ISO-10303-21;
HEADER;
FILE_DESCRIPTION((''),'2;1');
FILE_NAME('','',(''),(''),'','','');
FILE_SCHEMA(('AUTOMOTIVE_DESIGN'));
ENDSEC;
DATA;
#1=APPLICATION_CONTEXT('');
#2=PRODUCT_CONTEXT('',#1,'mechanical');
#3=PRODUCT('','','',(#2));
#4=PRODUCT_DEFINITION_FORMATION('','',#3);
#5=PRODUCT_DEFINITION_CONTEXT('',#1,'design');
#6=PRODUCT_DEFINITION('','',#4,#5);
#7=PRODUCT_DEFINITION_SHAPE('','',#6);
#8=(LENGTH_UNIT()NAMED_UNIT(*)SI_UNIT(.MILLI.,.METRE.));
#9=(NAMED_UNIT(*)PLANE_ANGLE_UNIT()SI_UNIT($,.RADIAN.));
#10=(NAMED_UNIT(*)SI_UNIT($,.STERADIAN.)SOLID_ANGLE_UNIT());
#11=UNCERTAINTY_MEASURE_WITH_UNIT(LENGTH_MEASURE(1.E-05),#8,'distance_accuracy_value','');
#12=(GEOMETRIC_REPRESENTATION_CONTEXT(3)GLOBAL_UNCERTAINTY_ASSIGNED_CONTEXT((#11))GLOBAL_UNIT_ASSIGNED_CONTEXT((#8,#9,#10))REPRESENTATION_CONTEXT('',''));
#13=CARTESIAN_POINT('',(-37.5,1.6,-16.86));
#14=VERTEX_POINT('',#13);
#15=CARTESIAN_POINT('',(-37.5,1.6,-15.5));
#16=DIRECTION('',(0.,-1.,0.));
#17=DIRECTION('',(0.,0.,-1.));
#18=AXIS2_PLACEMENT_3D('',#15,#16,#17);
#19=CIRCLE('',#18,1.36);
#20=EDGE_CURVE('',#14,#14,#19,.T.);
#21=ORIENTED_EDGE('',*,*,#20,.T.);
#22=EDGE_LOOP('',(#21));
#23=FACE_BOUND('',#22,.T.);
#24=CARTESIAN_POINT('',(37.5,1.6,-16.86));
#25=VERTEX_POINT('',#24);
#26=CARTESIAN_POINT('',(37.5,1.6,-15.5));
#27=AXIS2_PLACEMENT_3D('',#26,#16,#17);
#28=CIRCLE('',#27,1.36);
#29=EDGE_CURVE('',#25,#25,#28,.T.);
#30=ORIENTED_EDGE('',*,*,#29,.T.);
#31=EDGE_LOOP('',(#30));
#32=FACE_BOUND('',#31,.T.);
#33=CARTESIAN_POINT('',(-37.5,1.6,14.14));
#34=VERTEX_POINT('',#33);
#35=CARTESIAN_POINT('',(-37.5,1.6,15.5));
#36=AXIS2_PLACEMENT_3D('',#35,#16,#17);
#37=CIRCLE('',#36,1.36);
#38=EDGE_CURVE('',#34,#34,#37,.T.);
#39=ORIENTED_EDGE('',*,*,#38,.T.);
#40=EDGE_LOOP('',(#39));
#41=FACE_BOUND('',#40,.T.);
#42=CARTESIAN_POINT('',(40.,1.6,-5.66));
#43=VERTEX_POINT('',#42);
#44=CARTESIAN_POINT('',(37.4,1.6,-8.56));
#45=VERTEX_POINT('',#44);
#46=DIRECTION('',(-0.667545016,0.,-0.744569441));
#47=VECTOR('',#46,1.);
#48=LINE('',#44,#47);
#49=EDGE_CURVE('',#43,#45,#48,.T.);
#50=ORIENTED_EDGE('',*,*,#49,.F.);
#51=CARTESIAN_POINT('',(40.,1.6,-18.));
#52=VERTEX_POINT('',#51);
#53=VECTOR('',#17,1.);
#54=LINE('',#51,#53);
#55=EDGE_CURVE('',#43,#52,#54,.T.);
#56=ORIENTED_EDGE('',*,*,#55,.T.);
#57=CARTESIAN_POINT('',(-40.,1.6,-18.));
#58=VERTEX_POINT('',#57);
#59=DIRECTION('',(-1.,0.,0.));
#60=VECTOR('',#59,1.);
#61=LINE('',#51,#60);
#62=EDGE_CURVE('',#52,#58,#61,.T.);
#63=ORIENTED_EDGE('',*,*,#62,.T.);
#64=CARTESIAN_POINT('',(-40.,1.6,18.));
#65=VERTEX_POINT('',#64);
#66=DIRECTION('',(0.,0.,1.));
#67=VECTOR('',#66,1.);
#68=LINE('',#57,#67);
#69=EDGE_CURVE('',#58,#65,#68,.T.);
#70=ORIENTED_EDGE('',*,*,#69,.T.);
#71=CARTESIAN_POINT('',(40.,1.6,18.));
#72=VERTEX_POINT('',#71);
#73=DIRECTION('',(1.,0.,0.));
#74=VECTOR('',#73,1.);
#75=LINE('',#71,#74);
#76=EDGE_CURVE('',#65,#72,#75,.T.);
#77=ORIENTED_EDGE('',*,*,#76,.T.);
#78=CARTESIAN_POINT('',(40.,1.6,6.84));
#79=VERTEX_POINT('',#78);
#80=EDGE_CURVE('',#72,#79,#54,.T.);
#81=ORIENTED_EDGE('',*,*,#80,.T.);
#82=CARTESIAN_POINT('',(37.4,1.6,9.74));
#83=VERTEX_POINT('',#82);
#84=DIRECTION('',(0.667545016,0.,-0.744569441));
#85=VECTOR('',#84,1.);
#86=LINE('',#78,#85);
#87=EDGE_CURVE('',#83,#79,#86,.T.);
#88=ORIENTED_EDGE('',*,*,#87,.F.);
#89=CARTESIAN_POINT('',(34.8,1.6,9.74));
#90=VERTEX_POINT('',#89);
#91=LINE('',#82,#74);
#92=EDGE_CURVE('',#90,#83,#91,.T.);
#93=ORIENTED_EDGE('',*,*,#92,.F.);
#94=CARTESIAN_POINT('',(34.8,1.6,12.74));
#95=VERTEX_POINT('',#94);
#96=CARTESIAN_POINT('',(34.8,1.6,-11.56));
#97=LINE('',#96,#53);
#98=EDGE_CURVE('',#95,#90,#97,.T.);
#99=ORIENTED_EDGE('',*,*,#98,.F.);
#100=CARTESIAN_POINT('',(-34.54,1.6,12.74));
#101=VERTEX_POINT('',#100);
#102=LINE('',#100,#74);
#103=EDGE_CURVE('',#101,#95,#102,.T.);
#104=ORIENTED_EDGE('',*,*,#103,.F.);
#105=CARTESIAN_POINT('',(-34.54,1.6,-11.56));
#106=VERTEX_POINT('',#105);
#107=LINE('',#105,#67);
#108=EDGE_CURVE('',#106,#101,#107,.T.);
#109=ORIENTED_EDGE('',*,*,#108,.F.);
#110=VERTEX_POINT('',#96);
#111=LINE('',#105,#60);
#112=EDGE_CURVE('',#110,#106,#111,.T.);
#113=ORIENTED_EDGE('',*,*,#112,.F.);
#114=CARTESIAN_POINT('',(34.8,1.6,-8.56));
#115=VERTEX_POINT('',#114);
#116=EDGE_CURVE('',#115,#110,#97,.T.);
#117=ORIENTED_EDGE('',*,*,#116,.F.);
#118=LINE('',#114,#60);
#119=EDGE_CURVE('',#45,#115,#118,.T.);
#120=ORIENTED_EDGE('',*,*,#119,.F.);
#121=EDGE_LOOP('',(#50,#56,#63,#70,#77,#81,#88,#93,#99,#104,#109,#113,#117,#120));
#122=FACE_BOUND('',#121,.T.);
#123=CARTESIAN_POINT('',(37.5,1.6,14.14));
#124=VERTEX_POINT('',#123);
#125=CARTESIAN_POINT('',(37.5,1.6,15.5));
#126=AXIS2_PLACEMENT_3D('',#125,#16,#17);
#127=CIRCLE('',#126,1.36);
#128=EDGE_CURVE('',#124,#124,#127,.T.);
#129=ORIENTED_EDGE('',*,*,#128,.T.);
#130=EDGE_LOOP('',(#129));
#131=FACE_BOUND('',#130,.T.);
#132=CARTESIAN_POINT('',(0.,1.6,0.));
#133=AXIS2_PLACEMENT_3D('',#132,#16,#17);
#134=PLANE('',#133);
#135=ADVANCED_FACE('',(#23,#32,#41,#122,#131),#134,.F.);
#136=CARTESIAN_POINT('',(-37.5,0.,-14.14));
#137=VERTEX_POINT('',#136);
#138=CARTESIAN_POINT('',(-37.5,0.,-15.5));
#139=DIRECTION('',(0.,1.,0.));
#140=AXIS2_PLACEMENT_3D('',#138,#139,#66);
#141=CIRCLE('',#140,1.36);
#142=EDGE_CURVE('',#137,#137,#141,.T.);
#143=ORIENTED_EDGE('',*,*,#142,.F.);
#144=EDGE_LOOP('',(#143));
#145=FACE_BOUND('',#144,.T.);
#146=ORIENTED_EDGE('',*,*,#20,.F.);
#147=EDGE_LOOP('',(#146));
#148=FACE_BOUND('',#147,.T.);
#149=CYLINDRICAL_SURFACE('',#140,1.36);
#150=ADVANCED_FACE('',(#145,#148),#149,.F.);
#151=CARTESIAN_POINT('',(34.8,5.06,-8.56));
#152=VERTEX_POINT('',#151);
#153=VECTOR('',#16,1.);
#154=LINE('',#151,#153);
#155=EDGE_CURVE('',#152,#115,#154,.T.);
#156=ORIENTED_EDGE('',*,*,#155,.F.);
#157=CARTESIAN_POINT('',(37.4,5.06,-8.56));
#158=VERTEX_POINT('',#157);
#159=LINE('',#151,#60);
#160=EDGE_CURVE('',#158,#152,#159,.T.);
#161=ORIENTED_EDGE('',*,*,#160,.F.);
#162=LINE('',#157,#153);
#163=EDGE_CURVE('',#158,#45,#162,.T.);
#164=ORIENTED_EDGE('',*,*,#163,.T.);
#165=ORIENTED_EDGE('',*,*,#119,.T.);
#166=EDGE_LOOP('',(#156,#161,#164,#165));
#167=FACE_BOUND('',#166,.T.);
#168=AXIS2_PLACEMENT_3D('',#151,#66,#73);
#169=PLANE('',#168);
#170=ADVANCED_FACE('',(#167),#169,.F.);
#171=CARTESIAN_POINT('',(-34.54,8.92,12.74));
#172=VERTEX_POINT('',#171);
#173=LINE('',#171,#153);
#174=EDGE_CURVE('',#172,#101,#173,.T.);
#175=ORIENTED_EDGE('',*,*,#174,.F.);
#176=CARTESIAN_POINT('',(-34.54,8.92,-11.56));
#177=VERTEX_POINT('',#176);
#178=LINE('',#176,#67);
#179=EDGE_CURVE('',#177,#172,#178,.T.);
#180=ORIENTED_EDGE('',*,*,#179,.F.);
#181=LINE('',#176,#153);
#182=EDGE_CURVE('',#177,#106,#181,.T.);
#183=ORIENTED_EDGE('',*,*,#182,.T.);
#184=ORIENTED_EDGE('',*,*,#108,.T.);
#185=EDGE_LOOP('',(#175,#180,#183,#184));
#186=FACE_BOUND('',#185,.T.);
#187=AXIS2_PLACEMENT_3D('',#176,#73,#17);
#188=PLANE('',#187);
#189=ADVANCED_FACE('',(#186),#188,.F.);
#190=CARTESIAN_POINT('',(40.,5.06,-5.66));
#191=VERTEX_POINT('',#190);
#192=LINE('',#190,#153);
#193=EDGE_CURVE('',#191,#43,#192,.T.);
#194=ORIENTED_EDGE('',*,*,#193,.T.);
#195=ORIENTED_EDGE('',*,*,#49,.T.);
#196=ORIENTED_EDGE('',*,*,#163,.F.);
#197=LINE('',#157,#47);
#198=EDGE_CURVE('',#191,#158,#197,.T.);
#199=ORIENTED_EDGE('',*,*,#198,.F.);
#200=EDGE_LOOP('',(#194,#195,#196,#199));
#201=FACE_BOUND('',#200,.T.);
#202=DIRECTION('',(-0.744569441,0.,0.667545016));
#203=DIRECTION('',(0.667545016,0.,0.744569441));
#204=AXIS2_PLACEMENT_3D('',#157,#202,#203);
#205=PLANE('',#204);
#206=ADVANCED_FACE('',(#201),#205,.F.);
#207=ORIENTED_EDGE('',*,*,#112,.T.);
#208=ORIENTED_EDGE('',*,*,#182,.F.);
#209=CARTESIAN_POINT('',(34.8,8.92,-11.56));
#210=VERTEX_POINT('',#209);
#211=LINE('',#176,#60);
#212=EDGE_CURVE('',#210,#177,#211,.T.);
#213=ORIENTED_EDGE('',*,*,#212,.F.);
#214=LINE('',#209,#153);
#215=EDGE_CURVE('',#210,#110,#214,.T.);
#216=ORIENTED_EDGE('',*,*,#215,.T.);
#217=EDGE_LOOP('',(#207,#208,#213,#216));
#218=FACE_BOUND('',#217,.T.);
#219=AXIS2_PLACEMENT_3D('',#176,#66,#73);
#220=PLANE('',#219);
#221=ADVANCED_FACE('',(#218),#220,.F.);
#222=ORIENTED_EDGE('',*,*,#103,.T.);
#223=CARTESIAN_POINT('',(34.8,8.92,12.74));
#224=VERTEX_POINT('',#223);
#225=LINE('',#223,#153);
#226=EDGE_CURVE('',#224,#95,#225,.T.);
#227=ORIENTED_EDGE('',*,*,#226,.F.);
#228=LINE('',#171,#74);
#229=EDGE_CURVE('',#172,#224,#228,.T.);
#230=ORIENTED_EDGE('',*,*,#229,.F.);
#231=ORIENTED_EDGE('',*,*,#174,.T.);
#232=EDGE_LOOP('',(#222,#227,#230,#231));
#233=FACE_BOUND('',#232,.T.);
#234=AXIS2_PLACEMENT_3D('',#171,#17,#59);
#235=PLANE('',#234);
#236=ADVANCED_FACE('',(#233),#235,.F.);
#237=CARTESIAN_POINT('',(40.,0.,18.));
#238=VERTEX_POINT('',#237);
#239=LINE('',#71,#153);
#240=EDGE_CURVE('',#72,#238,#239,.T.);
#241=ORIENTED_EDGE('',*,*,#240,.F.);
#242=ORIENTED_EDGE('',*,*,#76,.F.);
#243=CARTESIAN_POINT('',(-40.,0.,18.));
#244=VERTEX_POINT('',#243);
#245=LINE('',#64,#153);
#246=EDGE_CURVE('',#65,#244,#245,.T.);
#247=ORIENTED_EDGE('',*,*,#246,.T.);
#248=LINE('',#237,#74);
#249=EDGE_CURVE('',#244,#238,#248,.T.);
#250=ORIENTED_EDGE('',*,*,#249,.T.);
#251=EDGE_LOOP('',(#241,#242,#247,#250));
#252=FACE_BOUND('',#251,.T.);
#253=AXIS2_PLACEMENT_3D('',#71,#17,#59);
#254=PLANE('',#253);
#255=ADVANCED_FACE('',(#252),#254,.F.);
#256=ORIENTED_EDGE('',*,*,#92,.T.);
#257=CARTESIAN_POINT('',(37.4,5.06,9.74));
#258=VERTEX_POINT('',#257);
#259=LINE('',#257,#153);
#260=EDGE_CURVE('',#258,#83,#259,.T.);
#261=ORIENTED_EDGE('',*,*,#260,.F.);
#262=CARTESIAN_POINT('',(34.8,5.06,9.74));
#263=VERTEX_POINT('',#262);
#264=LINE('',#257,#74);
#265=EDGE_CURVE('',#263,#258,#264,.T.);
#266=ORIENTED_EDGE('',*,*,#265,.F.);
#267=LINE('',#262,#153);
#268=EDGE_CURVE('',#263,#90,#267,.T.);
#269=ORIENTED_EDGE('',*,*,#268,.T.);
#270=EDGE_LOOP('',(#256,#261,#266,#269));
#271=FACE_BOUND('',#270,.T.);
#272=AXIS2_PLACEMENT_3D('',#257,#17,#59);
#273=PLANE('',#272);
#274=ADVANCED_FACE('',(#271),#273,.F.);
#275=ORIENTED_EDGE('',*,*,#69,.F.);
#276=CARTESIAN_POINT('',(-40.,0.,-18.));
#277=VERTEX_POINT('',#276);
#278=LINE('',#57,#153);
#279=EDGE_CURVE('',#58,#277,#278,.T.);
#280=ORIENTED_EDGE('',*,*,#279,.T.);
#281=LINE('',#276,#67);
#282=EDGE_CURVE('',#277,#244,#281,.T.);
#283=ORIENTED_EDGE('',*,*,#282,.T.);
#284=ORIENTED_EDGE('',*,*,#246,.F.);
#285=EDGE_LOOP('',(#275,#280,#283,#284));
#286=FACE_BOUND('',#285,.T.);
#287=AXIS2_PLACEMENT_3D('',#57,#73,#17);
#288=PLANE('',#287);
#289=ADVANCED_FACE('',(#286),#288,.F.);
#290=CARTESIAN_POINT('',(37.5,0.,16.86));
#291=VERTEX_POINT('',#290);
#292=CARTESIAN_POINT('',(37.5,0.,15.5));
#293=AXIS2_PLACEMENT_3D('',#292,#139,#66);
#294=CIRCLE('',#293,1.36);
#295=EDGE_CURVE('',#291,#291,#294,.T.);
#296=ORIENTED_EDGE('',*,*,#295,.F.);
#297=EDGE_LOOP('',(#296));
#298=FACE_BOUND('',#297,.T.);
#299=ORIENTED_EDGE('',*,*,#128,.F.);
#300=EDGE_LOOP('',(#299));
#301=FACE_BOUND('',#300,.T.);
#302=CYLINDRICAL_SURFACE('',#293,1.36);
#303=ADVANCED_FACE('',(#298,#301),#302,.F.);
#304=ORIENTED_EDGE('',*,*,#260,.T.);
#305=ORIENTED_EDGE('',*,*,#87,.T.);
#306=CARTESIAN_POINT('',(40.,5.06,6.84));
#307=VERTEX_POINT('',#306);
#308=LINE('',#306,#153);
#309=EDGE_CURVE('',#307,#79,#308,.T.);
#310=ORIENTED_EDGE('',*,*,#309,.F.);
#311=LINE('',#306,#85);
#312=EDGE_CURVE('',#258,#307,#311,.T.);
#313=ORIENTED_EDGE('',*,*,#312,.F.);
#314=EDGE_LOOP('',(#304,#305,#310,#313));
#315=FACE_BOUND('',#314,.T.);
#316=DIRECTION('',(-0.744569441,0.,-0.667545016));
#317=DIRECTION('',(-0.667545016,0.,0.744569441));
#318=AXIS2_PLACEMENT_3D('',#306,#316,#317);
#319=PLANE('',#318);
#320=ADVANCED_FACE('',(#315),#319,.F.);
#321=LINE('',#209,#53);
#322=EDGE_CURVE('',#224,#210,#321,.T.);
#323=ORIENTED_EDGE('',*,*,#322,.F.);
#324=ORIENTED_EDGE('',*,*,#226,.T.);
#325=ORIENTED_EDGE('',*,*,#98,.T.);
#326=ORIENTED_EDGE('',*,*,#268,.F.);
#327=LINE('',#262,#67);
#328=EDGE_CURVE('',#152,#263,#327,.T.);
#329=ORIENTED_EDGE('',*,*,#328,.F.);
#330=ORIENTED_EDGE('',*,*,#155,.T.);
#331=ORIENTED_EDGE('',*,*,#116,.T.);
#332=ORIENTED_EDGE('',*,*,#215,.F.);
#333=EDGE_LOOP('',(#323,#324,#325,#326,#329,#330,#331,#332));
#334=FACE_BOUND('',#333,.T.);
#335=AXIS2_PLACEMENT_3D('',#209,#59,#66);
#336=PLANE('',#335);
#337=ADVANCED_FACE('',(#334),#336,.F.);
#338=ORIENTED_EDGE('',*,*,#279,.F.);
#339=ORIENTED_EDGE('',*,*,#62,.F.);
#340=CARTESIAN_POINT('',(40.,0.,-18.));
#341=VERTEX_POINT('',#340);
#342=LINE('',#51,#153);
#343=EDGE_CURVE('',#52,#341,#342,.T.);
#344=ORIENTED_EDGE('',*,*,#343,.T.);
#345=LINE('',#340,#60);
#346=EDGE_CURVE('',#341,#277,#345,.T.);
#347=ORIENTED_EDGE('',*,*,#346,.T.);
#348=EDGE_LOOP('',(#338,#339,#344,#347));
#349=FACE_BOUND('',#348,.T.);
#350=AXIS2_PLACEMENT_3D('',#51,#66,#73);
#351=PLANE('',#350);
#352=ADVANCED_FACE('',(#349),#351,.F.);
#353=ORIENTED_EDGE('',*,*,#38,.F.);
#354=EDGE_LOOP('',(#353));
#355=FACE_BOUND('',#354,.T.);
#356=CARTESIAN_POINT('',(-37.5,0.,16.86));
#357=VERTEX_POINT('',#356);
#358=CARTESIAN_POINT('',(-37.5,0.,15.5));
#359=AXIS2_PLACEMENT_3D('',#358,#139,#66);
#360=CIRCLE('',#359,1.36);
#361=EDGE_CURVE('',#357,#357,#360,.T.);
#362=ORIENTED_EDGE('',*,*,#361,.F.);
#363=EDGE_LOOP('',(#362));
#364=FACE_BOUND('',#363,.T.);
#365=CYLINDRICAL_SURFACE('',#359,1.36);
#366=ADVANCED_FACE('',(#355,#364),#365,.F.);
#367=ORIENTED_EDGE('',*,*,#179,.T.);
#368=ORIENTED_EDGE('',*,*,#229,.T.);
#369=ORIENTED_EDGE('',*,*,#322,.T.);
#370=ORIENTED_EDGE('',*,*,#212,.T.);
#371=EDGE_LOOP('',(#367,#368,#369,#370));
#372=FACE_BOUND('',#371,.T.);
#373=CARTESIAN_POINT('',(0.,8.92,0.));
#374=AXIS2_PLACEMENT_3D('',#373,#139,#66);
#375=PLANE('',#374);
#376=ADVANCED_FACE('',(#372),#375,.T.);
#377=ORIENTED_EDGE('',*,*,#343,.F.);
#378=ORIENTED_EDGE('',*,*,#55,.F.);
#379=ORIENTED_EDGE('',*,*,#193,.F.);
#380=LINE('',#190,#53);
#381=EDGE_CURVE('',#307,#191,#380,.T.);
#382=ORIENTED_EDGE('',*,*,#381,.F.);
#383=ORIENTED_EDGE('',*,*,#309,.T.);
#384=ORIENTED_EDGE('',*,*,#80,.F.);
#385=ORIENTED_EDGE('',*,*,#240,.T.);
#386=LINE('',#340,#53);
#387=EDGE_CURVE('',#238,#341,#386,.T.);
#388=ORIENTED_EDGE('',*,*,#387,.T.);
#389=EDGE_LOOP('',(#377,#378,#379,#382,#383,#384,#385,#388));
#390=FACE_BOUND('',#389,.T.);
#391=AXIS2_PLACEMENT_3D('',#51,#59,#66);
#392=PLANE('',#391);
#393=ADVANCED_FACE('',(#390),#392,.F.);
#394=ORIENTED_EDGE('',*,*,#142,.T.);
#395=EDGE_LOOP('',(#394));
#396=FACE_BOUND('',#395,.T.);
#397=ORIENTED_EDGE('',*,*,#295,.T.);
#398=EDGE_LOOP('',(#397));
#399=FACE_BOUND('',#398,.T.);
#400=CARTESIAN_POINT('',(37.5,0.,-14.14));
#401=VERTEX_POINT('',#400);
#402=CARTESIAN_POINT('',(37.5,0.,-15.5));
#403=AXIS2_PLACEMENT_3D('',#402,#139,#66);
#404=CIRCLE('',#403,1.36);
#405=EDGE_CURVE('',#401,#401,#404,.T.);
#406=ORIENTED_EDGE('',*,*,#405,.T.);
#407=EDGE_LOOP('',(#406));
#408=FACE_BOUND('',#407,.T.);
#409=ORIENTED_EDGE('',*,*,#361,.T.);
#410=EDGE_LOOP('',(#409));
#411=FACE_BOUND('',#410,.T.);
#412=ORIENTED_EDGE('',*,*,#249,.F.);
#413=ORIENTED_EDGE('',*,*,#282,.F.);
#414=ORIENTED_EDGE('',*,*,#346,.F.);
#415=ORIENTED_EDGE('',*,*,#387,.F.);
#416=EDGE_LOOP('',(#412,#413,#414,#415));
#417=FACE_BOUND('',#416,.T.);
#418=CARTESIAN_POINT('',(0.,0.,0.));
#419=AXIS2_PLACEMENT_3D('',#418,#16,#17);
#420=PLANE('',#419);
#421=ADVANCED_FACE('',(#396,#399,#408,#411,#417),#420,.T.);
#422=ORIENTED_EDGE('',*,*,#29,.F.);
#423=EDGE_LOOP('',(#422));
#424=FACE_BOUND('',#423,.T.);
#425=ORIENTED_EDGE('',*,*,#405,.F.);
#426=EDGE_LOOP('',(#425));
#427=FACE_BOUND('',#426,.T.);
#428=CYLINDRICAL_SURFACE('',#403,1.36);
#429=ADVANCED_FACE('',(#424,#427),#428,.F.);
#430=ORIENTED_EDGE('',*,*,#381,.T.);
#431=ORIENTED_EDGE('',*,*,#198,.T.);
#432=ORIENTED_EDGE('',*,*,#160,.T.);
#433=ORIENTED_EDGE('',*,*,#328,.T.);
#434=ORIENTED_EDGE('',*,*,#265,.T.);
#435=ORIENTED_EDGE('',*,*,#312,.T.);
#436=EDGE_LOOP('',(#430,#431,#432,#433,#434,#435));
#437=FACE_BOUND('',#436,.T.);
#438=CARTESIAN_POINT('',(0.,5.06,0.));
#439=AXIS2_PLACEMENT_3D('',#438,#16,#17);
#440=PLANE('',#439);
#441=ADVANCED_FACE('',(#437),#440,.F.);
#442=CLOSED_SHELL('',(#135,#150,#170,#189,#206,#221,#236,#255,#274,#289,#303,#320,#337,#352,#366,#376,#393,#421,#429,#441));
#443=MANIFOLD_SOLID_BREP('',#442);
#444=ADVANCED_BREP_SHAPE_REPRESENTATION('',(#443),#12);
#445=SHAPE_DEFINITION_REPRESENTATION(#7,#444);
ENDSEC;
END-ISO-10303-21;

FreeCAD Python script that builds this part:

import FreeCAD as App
import Part
import Sketcher
Q = App.Units.Quantity


def add_polygon(sketch, points):
    """Adds a closed chain of lines whose ends are joined by coincident constraints."""
    first, n = sketch.GeometryCount, len(points)
    for a, b in zip(points, points[1:] + points[:1]):
        sketch.addGeometry(Part.LineSegment(App.Vector(*a, 0), App.Vector(*b, 0)), False)
    for i in range(n):
        sketch.addConstraint(Sketcher.Constraint("Coincident", first + i, 2, first + (i + 1) % n, 1))

doc = App.newDocument("Part")
body = doc.addObject("PartDesign::Body", "Body")

# Sketch on XZ plane
sketch1 = body.newObject("Sketcher::SketchObject", "Sketch")
sketch1.AttachmentSupport = (doc.getObject("XZ_Plane"), [""])
sketch1.MapMode = "FlatFace"
add_polygon(sketch1, [(-40, -18), (-40, 18), (40, 18), (40, -18)])  # lines 0-3
sketch1.addConstraint([
    Sketcher.Constraint("Vertical", 0),
    Sketcher.Constraint("Horizontal", 1),
    Sketcher.Constraint("Vertical", 2),
    Sketcher.Constraint("Horizontal", 3),
    Sketcher.Constraint("Symmetric", 0, 2, 2, 2, -1, 1),
    Sketcher.Constraint("DistanceX", 1, 1, 1, 2, Q("80 mm")),
    Sketcher.Constraint("DistanceY", 0, 1, 0, 2, Q("36 mm")),
])
pad1 = body.newObject("PartDesign::Pad", "Pad")
pad1.Profile = sketch1
pad1.Length = 1.6
pad1.Reversed = True

# Sketch on XZ plane
sketch2 = body.newObject("Sketcher::SketchObject", "Sketch001")
sketch2.AttachmentSupport = (doc.getObject("XZ_Plane"), [""])
sketch2.MapMode = "FlatFace"
sketch2.AttachmentOffset = App.Placement(App.Vector(0, 0, -1.6), App.Rotation())
add_polygon(sketch2, [(-35, -12), (-35, 13), (35, 13), (35, -12)])  # lines 0-3
sketch2.addConstraint([
    Sketcher.Constraint("Vertical", 0),
    Sketcher.Constraint("Horizontal", 1),
    Sketcher.Constraint("Vertical", 2),
    Sketcher.Constraint("Horizontal", 3),
    Sketcher.Constraint("DistanceY", 0, 1, 0, 2, Q("24.3 mm")),
    Sketcher.Constraint("DistanceX", 1, 1, 1, 2, Q("69.34 mm")),
    Sketcher.Constraint("DistanceX", -1, 1, 1, 2, Q("34.8 mm")),
    Sketcher.Constraint("DistanceY", -1, 1, 0, 2, Q("12.74 mm")),
])
pad2 = body.newObject("PartDesign::Pad", "Pad001")
pad2.Profile = sketch2
pad2.Length = 7.32
pad2.Reversed = True

# Sketch on XZ plane
sketch3 = body.newObject("Sketcher::SketchObject", "Sketch002")
sketch3.AttachmentSupport = (doc.getObject("XZ_Plane"), [""])
sketch3.MapMode = "FlatFace"
sketch3.AttachmentOffset = App.Placement(App.Vector(0, 0, -1.6), App.Rotation())
add_polygon(sketch3, [(40, 6.8), (40, -5.7), (37.4, -8.6), (34.8, -8.6), (34.8, 9.7), (37.4, 9.7)])  # lines 0-5
sketch3.addConstraint([
    Sketcher.Constraint("Vertical", 0),
    Sketcher.Constraint("Horizontal", 2),
    Sketcher.Constraint("Vertical", 3),
    Sketcher.Constraint("Horizontal", 4),
    Sketcher.Constraint("Vertical", 1, 2, 4, 2),
    Sketcher.Constraint("Equal", 1, 5),
    Sketcher.Constraint("DistanceX", 2, 2, 2, 1, Q("2.6 mm")),
    Sketcher.Constraint("DistanceY", 0, 2, 0, 1, Q("12.5 mm")),
    Sketcher.Constraint("DistanceY", 3, 1, 3, 2, Q("18.3 mm")),
    Sketcher.Constraint("DistanceX", -1, 1, 0, 2, Q("40 mm")),
    Sketcher.Constraint("DistanceX", -1, 1, 1, 2, Q("37.4 mm")),
    Sketcher.Constraint("DistanceY", 0, 2, -1, 1, Q("5.66 mm")),
])
pad3 = body.newObject("PartDesign::Pad", "Pad002")
pad3.Profile = sketch3
pad3.Length = 3.46
pad3.Reversed = True

# Sketch on XZ plane
sketch4 = body.newObject("Sketcher::SketchObject", "Sketch003")
sketch4.AttachmentSupport = (doc.getObject("XZ_Plane"), [""])
sketch4.MapMode = "FlatFace"
sketch4.AttachmentOffset = App.Placement(App.Vector(0, 0, -1.6), App.Rotation())
sketch4.addGeometry([
    Part.Circle(App.Vector(-37.5, -15.5, 0), App.Vector(0, 0, 1), 1.4),
    Part.Circle(App.Vector(-37.5, 15.5, 0), App.Vector(0, 0, 1), 1.4),
    Part.Circle(App.Vector(37.5, 15.5, 0), App.Vector(0, 0, 1), 1.4),
    Part.Circle(App.Vector(37.5, -15.5, 0), App.Vector(0, 0, 1), 1.4),
], False)
sketch4.addConstraint([
    Sketcher.Constraint("Equal", 0, 1),
    Sketcher.Constraint("Equal", 1, 2),
    Sketcher.Constraint("Equal", 2, 3),
    Sketcher.Constraint("Symmetric", 0, 3, 2, 3, -1, 1),
    Sketcher.Constraint("Symmetric", 1, 3, 3, 3, -1, 1),
    Sketcher.Constraint("Symmetric", 1, 3, 2, 3, -2),
    Sketcher.Constraint("Diameter", 0, Q("2.72 mm")),
    Sketcher.Constraint("DistanceY", 0, 3, 1, 3, Q("31 mm")),
    Sketcher.Constraint("DistanceX", 1, 3, 2, 3, Q("75 mm")),
])
pocket1 = body.newObject("PartDesign::Pocket", "Pocket")
pocket1.Profile = sketch4
pocket1.Type = "ThroughAll"
pocket1.Midplane = True

doc.recompute()
